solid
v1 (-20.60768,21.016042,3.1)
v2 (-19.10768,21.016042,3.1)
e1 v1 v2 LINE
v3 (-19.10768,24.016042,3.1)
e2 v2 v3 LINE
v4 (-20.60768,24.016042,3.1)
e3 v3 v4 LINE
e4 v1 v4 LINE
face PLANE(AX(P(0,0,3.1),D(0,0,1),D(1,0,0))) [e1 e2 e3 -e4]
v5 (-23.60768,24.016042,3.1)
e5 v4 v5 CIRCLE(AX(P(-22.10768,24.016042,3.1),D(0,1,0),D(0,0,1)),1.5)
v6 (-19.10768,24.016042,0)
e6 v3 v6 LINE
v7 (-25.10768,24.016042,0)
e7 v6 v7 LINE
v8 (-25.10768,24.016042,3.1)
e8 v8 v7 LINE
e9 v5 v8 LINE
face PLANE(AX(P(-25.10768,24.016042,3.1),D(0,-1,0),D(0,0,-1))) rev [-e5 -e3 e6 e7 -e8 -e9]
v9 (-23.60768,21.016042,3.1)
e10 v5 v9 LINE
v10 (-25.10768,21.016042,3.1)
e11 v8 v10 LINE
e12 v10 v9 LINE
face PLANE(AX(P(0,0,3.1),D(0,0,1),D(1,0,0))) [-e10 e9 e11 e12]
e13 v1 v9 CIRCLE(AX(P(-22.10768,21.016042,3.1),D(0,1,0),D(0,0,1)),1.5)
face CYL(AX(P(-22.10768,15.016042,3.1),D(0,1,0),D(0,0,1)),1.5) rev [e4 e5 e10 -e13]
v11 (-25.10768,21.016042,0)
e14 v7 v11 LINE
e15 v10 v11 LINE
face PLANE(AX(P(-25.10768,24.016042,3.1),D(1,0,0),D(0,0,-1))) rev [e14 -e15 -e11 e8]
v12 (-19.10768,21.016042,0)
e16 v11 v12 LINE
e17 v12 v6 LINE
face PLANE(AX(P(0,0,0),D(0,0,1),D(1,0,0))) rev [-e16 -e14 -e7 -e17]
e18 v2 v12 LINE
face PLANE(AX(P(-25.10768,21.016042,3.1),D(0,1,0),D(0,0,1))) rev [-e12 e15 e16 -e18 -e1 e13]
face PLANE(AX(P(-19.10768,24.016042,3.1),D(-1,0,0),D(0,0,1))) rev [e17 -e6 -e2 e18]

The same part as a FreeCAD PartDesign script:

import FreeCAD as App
import Part
import Sketcher

V = App.Vector
Q = App.Units.Quantity

doc = App.newDocument("Part")
body = doc.addObject("PartDesign::Body", "Body")

sketch1 = body.newObject("Sketcher::SketchObject", "Sketch")
sketch1.AttachmentSupport = (doc.getObject("XY_Plane"), [""])
sketch1.MapMode = "FlatFace"
sketch1.addGeometry(Part.LineSegment(V(-25.10768, 24.016042, 0), V(-25.10768, 21.016042, 0)), False)
sketch1.addGeometry(Part.LineSegment(V(-25.10768, 21.016042, 0), V(-19.10768, 21.016042, 0)), False)
sketch1.addGeometry(Part.LineSegment(V(-19.10768, 21.016042, 0), V(-19.10768, 24.016042, 0)), False)
sketch1.addGeometry(Part.LineSegment(V(-19.10768, 24.016042, 0), V(-25.10768, 24.016042, 0)), False)
sketch1.addConstraint(Sketcher.Constraint("Coincident", 0, 2, 1, 1))
sketch1.addConstraint(Sketcher.Constraint("Coincident", 1, 2, 2, 1))
sketch1.addConstraint(Sketcher.Constraint("Coincident", 2, 2, 3, 1))
sketch1.addConstraint(Sketcher.Constraint("Coincident", 3, 2, 0, 1))
sketch1.addConstraint(Sketcher.Constraint("Vertical", 0))
sketch1.addConstraint(Sketcher.Constraint("Horizontal", 1))
sketch1.addConstraint(Sketcher.Constraint("Vertical", 2))
sketch1.addConstraint(Sketcher.Constraint("Horizontal", 3))
sketch1.addConstraint(Sketcher.Constraint("DistanceX", 1, 1, 1, 2, Q("6 mm")))
sketch1.addConstraint(Sketcher.Constraint("DistanceY", 0, 2, 0, 1, Q("3 mm")))
sketch1.addConstraint(Sketcher.Constraint("DistanceX", 0, 2, -1, 1, Q("25.10768 mm")))
sketch1.addConstraint(Sketcher.Constraint("DistanceY", -1, 1, 0, 2, Q("21.016042 mm")))
pad1 = body.newObject("PartDesign::Pad", "Pad")
pad1.Profile = sketch1
pad1.Length = 3.1

sketch2 = body.newObject("Sketcher::SketchObject", "Sketch001")
sketch2.AttachmentSupport = (doc.getObject("XZ_Plane"), [""])
sketch2.MapMode = "FlatFace"
sketch2.AttachmentOffset = App.Placement(V(0, 0, -24.016042), App.Rotation())
sketch2.addGeometry(Part.Circle(V(-22.10768, 3.1, 0), V(0, 0, 1), 1.5), False)
sketch2.addConstraint(Sketcher.Constraint("Diameter", 0, Q("3 mm")))
sketch2.addConstraint(Sketcher.Constraint("DistanceY", -1, 1, 0, 3, Q("3.1 mm")))
sketch2.addConstraint(Sketcher.Constraint("DistanceX", 0, 3, -1, 1, Q("22.10768 mm")))
pocket1 = body.newObject("PartDesign::Pocket", "Pocket")
pocket1.Profile = sketch2
pocket1.Length = 9
pocket1.Reversed = True

doc.recompute()
